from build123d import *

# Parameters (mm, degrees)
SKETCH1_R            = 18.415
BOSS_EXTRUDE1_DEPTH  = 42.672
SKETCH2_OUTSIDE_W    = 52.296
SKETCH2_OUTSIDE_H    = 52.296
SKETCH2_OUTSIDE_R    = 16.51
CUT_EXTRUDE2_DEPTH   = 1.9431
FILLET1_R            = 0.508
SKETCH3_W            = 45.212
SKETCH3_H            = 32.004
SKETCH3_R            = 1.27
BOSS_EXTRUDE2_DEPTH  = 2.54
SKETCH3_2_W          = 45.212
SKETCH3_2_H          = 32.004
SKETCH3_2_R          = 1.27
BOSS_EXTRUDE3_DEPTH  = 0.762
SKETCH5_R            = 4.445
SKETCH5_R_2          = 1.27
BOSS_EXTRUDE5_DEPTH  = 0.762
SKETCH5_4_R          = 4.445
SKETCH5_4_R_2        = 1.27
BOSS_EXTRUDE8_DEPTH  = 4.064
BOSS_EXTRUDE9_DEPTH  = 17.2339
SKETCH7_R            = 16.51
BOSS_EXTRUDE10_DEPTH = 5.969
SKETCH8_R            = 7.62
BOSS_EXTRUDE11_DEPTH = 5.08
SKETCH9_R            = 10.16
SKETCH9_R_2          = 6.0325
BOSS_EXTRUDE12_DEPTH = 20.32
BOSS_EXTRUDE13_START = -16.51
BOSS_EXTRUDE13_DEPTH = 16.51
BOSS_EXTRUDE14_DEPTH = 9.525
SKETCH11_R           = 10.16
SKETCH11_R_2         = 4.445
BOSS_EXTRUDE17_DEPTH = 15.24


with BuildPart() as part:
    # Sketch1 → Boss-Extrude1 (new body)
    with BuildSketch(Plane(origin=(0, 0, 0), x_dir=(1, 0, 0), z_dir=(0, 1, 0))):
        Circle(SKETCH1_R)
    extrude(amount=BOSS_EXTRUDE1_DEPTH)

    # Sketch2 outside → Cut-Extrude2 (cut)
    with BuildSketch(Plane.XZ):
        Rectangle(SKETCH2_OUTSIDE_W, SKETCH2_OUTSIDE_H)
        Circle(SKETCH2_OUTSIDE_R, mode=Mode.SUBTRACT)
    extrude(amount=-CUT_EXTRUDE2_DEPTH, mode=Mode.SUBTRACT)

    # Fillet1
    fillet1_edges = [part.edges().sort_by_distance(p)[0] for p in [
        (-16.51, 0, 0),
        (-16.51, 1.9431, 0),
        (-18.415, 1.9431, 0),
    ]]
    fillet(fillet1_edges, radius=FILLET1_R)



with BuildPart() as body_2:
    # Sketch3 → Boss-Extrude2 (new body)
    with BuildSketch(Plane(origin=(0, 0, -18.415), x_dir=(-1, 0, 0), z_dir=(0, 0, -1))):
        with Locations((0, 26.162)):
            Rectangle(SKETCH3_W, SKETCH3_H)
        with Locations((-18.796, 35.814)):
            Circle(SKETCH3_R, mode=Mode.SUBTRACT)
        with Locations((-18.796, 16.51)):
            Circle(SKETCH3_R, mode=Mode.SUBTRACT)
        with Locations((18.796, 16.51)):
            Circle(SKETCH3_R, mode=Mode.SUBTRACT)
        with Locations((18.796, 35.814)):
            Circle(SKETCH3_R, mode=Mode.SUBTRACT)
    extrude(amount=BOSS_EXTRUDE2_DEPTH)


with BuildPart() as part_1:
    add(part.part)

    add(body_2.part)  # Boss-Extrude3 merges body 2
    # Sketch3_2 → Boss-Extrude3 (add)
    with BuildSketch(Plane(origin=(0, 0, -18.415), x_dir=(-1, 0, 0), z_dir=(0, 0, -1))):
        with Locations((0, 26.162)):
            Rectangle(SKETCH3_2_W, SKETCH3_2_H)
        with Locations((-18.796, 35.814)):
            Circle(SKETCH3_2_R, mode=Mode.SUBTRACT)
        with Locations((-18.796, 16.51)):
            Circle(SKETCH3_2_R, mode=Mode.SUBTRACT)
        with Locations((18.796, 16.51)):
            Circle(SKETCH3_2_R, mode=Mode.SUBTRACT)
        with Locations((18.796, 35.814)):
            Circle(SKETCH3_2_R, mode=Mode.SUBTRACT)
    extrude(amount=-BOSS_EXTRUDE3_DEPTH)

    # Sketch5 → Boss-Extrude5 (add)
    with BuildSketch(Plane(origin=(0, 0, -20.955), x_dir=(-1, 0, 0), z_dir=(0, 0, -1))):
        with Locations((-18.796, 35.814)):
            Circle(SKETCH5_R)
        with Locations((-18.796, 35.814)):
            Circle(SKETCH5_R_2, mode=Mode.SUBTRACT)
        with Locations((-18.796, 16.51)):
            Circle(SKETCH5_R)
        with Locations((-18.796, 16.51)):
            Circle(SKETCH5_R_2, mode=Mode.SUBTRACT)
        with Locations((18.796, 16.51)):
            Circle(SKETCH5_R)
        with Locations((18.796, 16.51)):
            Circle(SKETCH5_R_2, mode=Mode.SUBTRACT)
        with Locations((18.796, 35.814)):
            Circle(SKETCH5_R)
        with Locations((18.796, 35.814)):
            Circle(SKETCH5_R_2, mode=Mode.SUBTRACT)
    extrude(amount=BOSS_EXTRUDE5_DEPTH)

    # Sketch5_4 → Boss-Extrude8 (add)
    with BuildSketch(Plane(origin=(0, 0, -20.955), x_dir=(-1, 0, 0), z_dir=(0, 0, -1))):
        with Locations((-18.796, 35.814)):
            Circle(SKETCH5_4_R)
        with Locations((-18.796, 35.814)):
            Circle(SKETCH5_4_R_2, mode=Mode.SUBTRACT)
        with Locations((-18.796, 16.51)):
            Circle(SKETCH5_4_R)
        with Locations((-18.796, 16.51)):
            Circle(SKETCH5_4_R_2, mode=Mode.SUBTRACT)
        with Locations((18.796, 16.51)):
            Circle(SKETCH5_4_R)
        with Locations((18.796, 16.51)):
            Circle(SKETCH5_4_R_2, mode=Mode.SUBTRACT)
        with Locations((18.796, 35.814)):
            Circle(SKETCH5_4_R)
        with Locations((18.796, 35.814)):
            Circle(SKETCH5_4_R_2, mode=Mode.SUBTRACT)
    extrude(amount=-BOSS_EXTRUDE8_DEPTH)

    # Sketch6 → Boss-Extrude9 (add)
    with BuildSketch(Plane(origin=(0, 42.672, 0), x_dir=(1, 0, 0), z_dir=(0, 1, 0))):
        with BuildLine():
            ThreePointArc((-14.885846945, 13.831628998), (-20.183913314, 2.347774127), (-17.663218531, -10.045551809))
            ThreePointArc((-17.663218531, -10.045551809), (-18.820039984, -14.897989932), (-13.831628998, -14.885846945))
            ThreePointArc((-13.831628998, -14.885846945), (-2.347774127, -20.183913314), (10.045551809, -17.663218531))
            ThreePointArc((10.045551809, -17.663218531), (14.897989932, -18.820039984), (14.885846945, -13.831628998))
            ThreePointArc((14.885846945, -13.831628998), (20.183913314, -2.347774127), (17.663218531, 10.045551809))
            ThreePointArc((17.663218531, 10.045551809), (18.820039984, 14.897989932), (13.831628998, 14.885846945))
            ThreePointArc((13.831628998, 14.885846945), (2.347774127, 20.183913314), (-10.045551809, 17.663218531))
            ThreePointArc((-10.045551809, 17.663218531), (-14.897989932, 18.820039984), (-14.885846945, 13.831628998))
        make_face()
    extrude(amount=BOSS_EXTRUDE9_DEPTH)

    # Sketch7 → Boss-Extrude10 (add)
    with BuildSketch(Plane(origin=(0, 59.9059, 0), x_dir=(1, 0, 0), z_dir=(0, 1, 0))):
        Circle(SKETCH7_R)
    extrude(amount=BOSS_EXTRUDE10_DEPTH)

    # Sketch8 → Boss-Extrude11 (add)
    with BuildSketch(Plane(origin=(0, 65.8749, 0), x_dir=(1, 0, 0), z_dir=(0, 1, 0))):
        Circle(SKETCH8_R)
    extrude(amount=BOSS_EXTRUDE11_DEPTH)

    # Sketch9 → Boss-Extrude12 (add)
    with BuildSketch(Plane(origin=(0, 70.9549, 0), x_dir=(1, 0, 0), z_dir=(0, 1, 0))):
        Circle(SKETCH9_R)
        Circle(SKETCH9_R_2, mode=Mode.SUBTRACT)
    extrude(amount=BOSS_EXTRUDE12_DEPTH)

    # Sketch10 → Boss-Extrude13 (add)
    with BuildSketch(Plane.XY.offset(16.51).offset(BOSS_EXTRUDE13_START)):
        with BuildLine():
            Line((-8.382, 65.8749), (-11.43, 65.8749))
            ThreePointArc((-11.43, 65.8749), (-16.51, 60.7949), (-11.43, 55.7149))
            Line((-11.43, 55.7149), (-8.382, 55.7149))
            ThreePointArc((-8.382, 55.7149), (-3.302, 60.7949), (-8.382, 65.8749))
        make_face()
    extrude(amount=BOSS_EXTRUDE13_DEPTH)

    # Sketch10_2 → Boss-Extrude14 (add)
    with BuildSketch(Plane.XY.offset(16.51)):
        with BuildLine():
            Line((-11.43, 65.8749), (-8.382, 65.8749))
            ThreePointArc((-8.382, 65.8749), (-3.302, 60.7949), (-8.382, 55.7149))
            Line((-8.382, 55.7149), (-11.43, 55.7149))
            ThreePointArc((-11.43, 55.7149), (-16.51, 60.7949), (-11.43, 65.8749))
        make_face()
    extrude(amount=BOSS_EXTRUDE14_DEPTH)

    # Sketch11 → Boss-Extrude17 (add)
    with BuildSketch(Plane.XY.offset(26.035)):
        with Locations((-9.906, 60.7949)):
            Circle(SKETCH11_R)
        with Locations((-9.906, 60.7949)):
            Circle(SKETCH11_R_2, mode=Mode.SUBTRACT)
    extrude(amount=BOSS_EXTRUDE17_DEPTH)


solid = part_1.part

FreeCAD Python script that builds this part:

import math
import FreeCAD as App
import Part
import Sketcher
from FreeCAD import Vector
Q = App.Units.Quantity


def edges_at(feature, points):
    """Names of the edges that pass closest to the given points."""
    edges = feature.Shape.Edges
    near = lambda p: min(range(len(edges)), key=lambda i: edges[i].distToShape(Part.Vertex(*p))[0])
    return sorted({f"Edge{near(p) + 1}" for p in points})


def add_polygon(sketch, points):
    """Adds a closed chain of lines whose ends are joined by coincident constraints."""
    first, n = sketch.GeometryCount, len(points)
    for a, b in zip(points, points[1:] + points[:1]):
        sketch.addGeometry(Part.LineSegment(App.Vector(*a, 0), App.Vector(*b, 0)), False)
    for i in range(n):
        sketch.addConstraint(Sketcher.Constraint("Coincident", first + i, 2, first + (i + 1) % n, 1))

doc = App.newDocument("Part")
body = doc.addObject("PartDesign::Body", "Body")

# Sketch on XZ plane
sketch1 = body.newObject("Sketcher::SketchObject", "Sketch")
sketch1.AttachmentSupport = (doc.getObject("XZ_Plane"), [""])
sketch1.MapMode = "FlatFace"
sketch1.addGeometry(Part.Circle(Vector(0, 0, 0), Vector(0, 0, 1), 18), False)
sketch1.addConstraint([
    Sketcher.Constraint("Coincident", 0, 3, -1, 1),
    Sketcher.Constraint("Diameter", 0, Q("1.45 in")),
])
pad1 = body.newObject("PartDesign::Pad", "Pad")
pad1.Profile = sketch1
pad1.Length = Q("1.68 in")
pad1.Reversed = True

# Sketch on XZ plane
sketch2 = body.newObject("Sketcher::SketchObject", "Sketch001")
sketch2.AttachmentSupport = (doc.getObject("XZ_Plane"), [""])
sketch2.MapMode = "FlatFace"
add_polygon(sketch2, [(-26, 26), (-26, -26), (26, -26), (26, 26)])  # lines 0-3
sketch2.addGeometry(Part.Circle(Vector(0, 0, 0), Vector(0, 0, 1), 17), False)  # 4
sketch2.addConstraint([
    Sketcher.Constraint("Vertical", 0),
    Sketcher.Constraint("Horizontal", 1),
    Sketcher.Constraint("Vertical", 2),
    Sketcher.Constraint("Horizontal", 3),
    Sketcher.Constraint("Coincident", 4, 3, -1, 1),
    Sketcher.Constraint("Symmetric", 0, 2, 2, 2, -1, 1),
    Sketcher.Constraint("Equal", 3, 0),
    Sketcher.Constraint("Diameter", 4, Q("1.3 in")),
    Sketcher.Constraint("DistanceX", 1, 1, 1, 2, 52.296),
])
pocket1 = body.newObject("PartDesign::Pocket", "Pocket")
pocket1.Profile = sketch2
pocket1.Length = Q("0.0765 in")
doc.recompute()

fillet = body.newObject("PartDesign::Fillet", "Fillet")
fillet.Base = (pocket1, edges_at(pocket1, [(-16.51, 0, 0), (-16.51, 1.943, 0), (-18.415, 1.943, 0)]))
fillet.Radius = Q("0.02 in")
body2 = doc.addObject("PartDesign::Body", "Body001")

# Sketch on XY plane
sketch3 = body2.newObject("Sketcher::SketchObject", "Sketch002")
sketch3.AttachmentSupport = (doc.getObject("XY_Plane001"), [""])
sketch3.MapMode = "FlatFace"
sketch3.AttachmentOffset = App.Placement(Vector(0, 0, -0.725 * 25.4), App.Rotation())
add_polygon(sketch3, [(22.6, 42.2), (22.6, 10.2), (-22.6, 10.2), (-22.6, 42.2)])  # lines 0-3
sketch3.addGeometry(Part.Circle(Vector(18.8, 16.5, 0), Vector(0, 0, 1), 1.3), False)  # 4
sketch3.addGeometry(Part.Circle(Vector(-18.8, 16.5, 0), Vector(0, 0, 1), 1.3), False)  # 5
sketch3.addGeometry(Part.Circle(Vector(18.8, 35.8, 0), Vector(0, 0, 1), 1.3), False)  # 6
sketch3.addGeometry(Part.Circle(Vector(-18.8, 35.8, 0), Vector(0, 0, 1), 1.3), False)  # 7
sketch3.addConstraint([
    Sketcher.Constraint("Vertical", 0),
    Sketcher.Constraint("Horizontal", 1),
    Sketcher.Constraint("Vertical", 2),
    Sketcher.Constraint("Horizontal", 3),
    Sketcher.Constraint("Equal", 4, 5),
    Sketcher.Constraint("Equal", 5, 6),
    Sketcher.Constraint("Equal", 6, 7),
    Sketcher.Constraint("Symmetric", 4, 3, 5, 3, -2),
    Sketcher.Constraint("Symmetric", 6, 3, 7, 3, -2),
    Sketcher.Constraint("Vertical", 4, 3, 6, 3),
    Sketcher.Constraint("Diameter", 4, Q("0.1 in")),
    Sketcher.Constraint("DistanceX", 1, 2, 1, 1, Q("1.78 in")),
    Sketcher.Constraint("DistanceY", 0, 2, 0, 1, Q("1.26 in")),
    Sketcher.Constraint("DistanceY", -1, 1, 0, 2, Q("0.4 in")),
    Sketcher.Constraint("DistanceX", -1, 1, 4, 3, Q("0.74 in")),
    Sketcher.Constraint("DistanceY", -1, 1, 4, 3, Q("0.65 in")),
    Sketcher.Constraint("DistanceY", -1, 1, 6, 3, Q("1.41 in")),
    Sketcher.Constraint("DistanceX", -1, 1, 0, 2, Q("0.89 in")),
])
pad2 = body2.newObject("PartDesign::Pad", "Pad001")
pad2.Profile = sketch3
pad2.Length = Q("0.1 in")
pad2.Reversed = True
body.AllowCompound = True
doc.recompute()

boolean = body.newObject("PartDesign::Boolean", "Boolean")
boolean.Type = "Fuse"
boolean.addObjects([body2])

# Sketch on XY plane
sketch4 = body.newObject("Sketcher::SketchObject", "Sketch003")
sketch4.AttachmentSupport = (doc.getObject("XY_Plane"), [""])
sketch4.MapMode = "FlatFace"
sketch4.AttachmentOffset = App.Placement(Vector(0, 0, -0.725 * 25.4), App.Rotation())
add_polygon(sketch4, [(22.6, 42.2), (22.6, 10.2), (-22.6, 10.2), (-22.6, 42.2)])  # lines 0-3
sketch4.addGeometry(Part.Circle(Vector(18.8, 16.5, 0), Vector(0, 0, 1), 1.3), False)  # 4
sketch4.addGeometry(Part.Circle(Vector(-18.8, 16.5, 0), Vector(0, 0, 1), 1.3), False)  # 5
sketch4.addGeometry(Part.Circle(Vector(18.8, 35.8, 0), Vector(0, 0, 1), 1.3), False)  # 6
sketch4.addGeometry(Part.Circle(Vector(-18.8, 35.8, 0), Vector(0, 0, 1), 1.3), False)  # 7
sketch4.addConstraint([
    Sketcher.Constraint("Vertical", 0),
    Sketcher.Constraint("Horizontal", 1),
    Sketcher.Constraint("Vertical", 2),
    Sketcher.Constraint("Horizontal", 3),
    Sketcher.Constraint("Equal", 4, 5),
    Sketcher.Constraint("Equal", 5, 6),
    Sketcher.Constraint("Equal", 6, 7),
    Sketcher.Constraint("Symmetric", 4, 3, 5, 3, -2),
    Sketcher.Constraint("Symmetric", 6, 3, 7, 3, -2),
    Sketcher.Constraint("Vertical", 4, 3, 6, 3),
    Sketcher.Constraint("Diameter", 4, Q("0.1 in")),
    Sketcher.Constraint("DistanceX", 1, 2, 1, 1, Q("1.78 in")),
    Sketcher.Constraint("DistanceY", 0, 2, 0, 1, Q("1.26 in")),
    Sketcher.Constraint("DistanceY", -1, 1, 0, 2, Q("0.4 in")),
    Sketcher.Constraint("DistanceX", -1, 1, 4, 3, Q("0.74 in")),
    Sketcher.Constraint("DistanceY", -1, 1, 4, 3, Q("0.65 in")),
    Sketcher.Constraint("DistanceY", -1, 1, 6, 3, Q("1.41 in")),
    Sketcher.Constraint("DistanceX", -1, 1, 0, 2, Q("0.89 in")),
])
pad3 = body.newObject("PartDesign::Pad", "Pad002")
pad3.Profile = sketch4
pad3.Length = Q("0.03 in")

# Sketch on XY plane
sketch5 = body.newObject("Sketcher::SketchObject", "Sketch004")
sketch5.AttachmentSupport = (doc.getObject("XY_Plane"), [""])
sketch5.MapMode = "FlatFace"
sketch5.AttachmentOffset = App.Placement(Vector(0, 0, -0.825 * 25.4), App.Rotation())
sketch5.addGeometry([
    Part.Circle(Vector(18.8, 35.8, 0), Vector(0, 0, 1), 4.4),  # 0
    Part.Circle(Vector(18.8, 35.8, 0), Vector(0, 0, 1), 1.3),  # 1
    Part.Circle(Vector(18.8, 16.5, 0), Vector(0, 0, 1), 4.4),  # 2
    Part.Circle(Vector(18.8, 16.5, 0), Vector(0, 0, 1), 1.3),  # 3
    Part.Circle(Vector(-18.8, 16.5, 0), Vector(0, 0, 1), 4.4),  # 4
    Part.Circle(Vector(-18.8, 16.5, 0), Vector(0, 0, 1), 1.3),  # 5
    Part.Circle(Vector(-18.8, 35.8, 0), Vector(0, 0, 1), 4.4),  # 6
    Part.Circle(Vector(-18.8, 35.8, 0), Vector(0, 0, 1), 1.3),  # 7
], False)
sketch5.addConstraint([
    Sketcher.Constraint("Coincident", 1, 3, 0, 3),
    Sketcher.Constraint("Coincident", 3, 3, 2, 3),
    Sketcher.Constraint("Coincident", 5, 3, 4, 3),
    Sketcher.Constraint("Coincident", 7, 3, 6, 3),
    Sketcher.Constraint("Equal", 0, 2),
    Sketcher.Constraint("Equal", 1, 3),
    Sketcher.Constraint("Equal", 2, 4),
    Sketcher.Constraint("Equal", 3, 5),
    Sketcher.Constraint("Equal", 4, 6),
    Sketcher.Constraint("Equal", 5, 7),
    Sketcher.Constraint("Symmetric", 2, 3, 4, 3, -2),
    Sketcher.Constraint("Symmetric", 0, 3, 6, 3, -2),
    Sketcher.Constraint("Vertical", 1, 3, 2, 3),
    Sketcher.Constraint("Diameter", 1, Q("0.1 in")),
    Sketcher.Constraint("Diameter", 0, Q("0.35 in")),
    Sketcher.Constraint("DistanceX", -1, 1, 0, 3, Q("0.74 in")),
    Sketcher.Constraint("DistanceY", -1, 1, 0, 3, Q("1.41 in")),
    Sketcher.Constraint("DistanceY", -1, 1, 2, 3, Q("0.65 in")),
])
pad4 = body.newObject("PartDesign::Pad", "Pad003")
pad4.Profile = sketch5
pad4.Length = Q("0.03 in")
pad4.Reversed = True

# Sketch on XY plane
sketch6 = body.newObject("Sketcher::SketchObject", "Sketch005")
sketch6.AttachmentSupport = (doc.getObject("XY_Plane"), [""])
sketch6.MapMode = "FlatFace"
sketch6.AttachmentOffset = App.Placement(Vector(0, 0, -0.825 * 25.4), App.Rotation())
sketch6.addGeometry([
    Part.Circle(Vector(18.8, 35.8, 0), Vector(0, 0, 1), 4.4),  # 0
    Part.Circle(Vector(18.8, 35.8, 0), Vector(0, 0, 1), 1.3),  # 1
    Part.Circle(Vector(18.8, 16.5, 0), Vector(0, 0, 1), 4.4),  # 2
    Part.Circle(Vector(18.8, 16.5, 0), Vector(0, 0, 1), 1.3),  # 3
    Part.Circle(Vector(-18.8, 16.5, 0), Vector(0, 0, 1), 4.4),  # 4
    Part.Circle(Vector(-18.8, 16.5, 0), Vector(0, 0, 1), 1.3),  # 5
    Part.Circle(Vector(-18.8, 35.8, 0), Vector(0, 0, 1), 4.4),  # 6
    Part.Circle(Vector(-18.8, 35.8, 0), Vector(0, 0, 1), 1.3),  # 7
], False)
sketch6.addConstraint([
    Sketcher.Constraint("Coincident", 1, 3, 0, 3),
    Sketcher.Constraint("Coincident", 3, 3, 2, 3),
    Sketcher.Constraint("Coincident", 5, 3, 4, 3),
    Sketcher.Constraint("Coincident", 7, 3, 6, 3),
    Sketcher.Constraint("Equal", 0, 2),
    Sketcher.Constraint("Equal", 1, 3),
    Sketcher.Constraint("Equal", 2, 4),
    Sketcher.Constraint("Equal", 3, 5),
    Sketcher.Constraint("Equal", 4, 6),
    Sketcher.Constraint("Equal", 5, 7),
    Sketcher.Constraint("Symmetric", 2, 3, 4, 3, -2),
    Sketcher.Constraint("Symmetric", 0, 3, 6, 3, -2),
    Sketcher.Constraint("Vertical", 1, 3, 2, 3),
    Sketcher.Constraint("Diameter", 1, Q("0.1 in")),
    Sketcher.Constraint("Diameter", 0, Q("0.35 in")),
    Sketcher.Constraint("DistanceX", -1, 1, 0, 3, Q("0.74 in")),
    Sketcher.Constraint("DistanceY", -1, 1, 0, 3, Q("1.41 in")),
    Sketcher.Constraint("DistanceY", -1, 1, 2, 3, Q("0.65 in")),
])
pad5 = body.newObject("PartDesign::Pad", "Pad004")
pad5.Profile = sketch6
pad5.Length = Q("0.16 in")

# Sketch on XZ plane
sketch7 = body.newObject("Sketcher::SketchObject", "Sketch006")
sketch7.AttachmentSupport = (doc.getObject("XZ_Plane"), [""])
sketch7.MapMode = "FlatFace"
sketch7.AttachmentOffset = App.Placement(Vector(0, 0, -1.68 * 25.4), App.Rotation())
sketch7.addGeometry([
    Part.ArcOfCircle(Part.Circle(Vector(0, 0, 0), Vector(0, 0, 1), 20.3), math.radians(150), math.radians(223)),  # 0
    Part.ArcOfCircle(Part.Circle(Vector(-16.3, 12.9, 0), Vector(0, 0, 1), 3.2), math.radians(38), math.radians(245)),  # 1
    Part.ArcOfCircle(Part.Circle(Vector(0, 0, 0), Vector(0, 0, 1), 20.3), math.radians(60), math.radians(133)),  # 2
    Part.ArcOfCircle(Part.Circle(Vector(12.9, 16.3, 0), Vector(0, 0, 1), 3.2), math.radians(-52), math.radians(155)),  # 3
    Part.ArcOfCircle(Part.Circle(Vector(0, 0, 0), Vector(0, 0, 1), 20.3), math.radians(-30), math.radians(43)),  # 4
    Part.ArcOfCircle(Part.Circle(Vector(16.3, -12.9, 0), Vector(0, 0, 1), 3.2), math.radians(-142), math.radians(65)),  # 5
    Part.ArcOfCircle(Part.Circle(Vector(0, 0, 0), Vector(0, 0, 1), 20.3), math.radians(-120), math.radians(-47)),  # 6
    Part.ArcOfCircle(Part.Circle(Vector(-12.9, -16.3, 0), Vector(0, 0, 1), 3.2), math.radians(128), math.radians(335)),  # 7
], False)
sketch7.addConstraint([
    Sketcher.Constraint("Coincident", 0, 1, 1, 2),
    Sketcher.Constraint("Coincident", 1, 1, 2, 2),
    Sketcher.Constraint("Coincident", 2, 1, 3, 2),
    Sketcher.Constraint("Coincident", 3, 1, 4, 2),
    Sketcher.Constraint("Coincident", 4, 1, 5, 2),
    Sketcher.Constraint("Coincident", 5, 1, 6, 2),
    Sketcher.Constraint("Coincident", 6, 1, 7, 2),
    Sketcher.Constraint("Coincident", 7, 1, 0, 2),
    Sketcher.Constraint("Coincident", 0, 3, -1, 1),
    Sketcher.Constraint("Coincident", 2, 3, -1, 1),
    Sketcher.Constraint("Coincident", 4, 3, -1, 1),
    Sketcher.Constraint("Coincident", 6, 3, -1, 1),
    Sketcher.Constraint("Equal", 0, 2),
    Sketcher.Constraint("Equal", 1, 3),
    Sketcher.Constraint("Equal", 2, 4),
    Sketcher.Constraint("Equal", 3, 5),
    Sketcher.Constraint("Equal", 4, 6),
    Sketcher.Constraint("Equal", 5, 7),
    Sketcher.Constraint("Symmetric", 1, 3, 5, 3, -1, 1),
    Sketcher.Constraint("Symmetric", 3, 3, 7, 3, -1, 1),
    Sketcher.Constraint("Radius", 0, Q("0.8 in")),
    Sketcher.Constraint("Radius", 1, Q("0.125 in")),
    Sketcher.Constraint("DistanceX", 0, 1, 1, 3, 1.332602),
    Sketcher.Constraint("DistanceY", 3, 3, 2, 1, 1.332602),
    Sketcher.Constraint("DistanceX", 0, 1, -1, 1, 17.663219),
    Sketcher.Constraint("DistanceX", -1, 1, 2, 1, 10.045552),
])
pad6 = body.newObject("PartDesign::Pad", "Pad005")
pad6.Profile = sketch7
pad6.Length = Q("0.6785 in")
pad6.Reversed = True

# Sketch on XZ plane
sketch8 = body.newObject("Sketcher::SketchObject", "Sketch007")
sketch8.AttachmentSupport = (doc.getObject("XZ_Plane"), [""])
sketch8.MapMode = "FlatFace"
sketch8.AttachmentOffset = App.Placement(Vector(0, 0, -2.3585 * 25.4), App.Rotation())
sketch8.addGeometry(Part.Circle(Vector(0, 0, 0), Vector(0, 0, 1), 17), False)
sketch8.addConstraint([
    Sketcher.Constraint("Coincident", 0, 3, -1, 1),
    Sketcher.Constraint("Diameter", 0, Q("1.3 in")),
])
pad7 = body.newObject("PartDesign::Pad", "Pad006")
pad7.Profile = sketch8
pad7.Length = Q("0.235 in")
pad7.Reversed = True

# Sketch on XZ plane
sketch9 = body.newObject("Sketcher::SketchObject", "Sketch008")
sketch9.AttachmentSupport = (doc.getObject("XZ_Plane"), [""])
sketch9.MapMode = "FlatFace"
sketch9.AttachmentOffset = App.Placement(Vector(0, 0, -2.5935 * 25.4), App.Rotation())
sketch9.addGeometry(Part.Circle(Vector(0, 0, 0), Vector(0, 0, 1), 8), False)
sketch9.addConstraint([
    Sketcher.Constraint("Coincident", 0, 3, -1, 1),
    Sketcher.Constraint("Diameter", 0, Q("0.6 in")),
])
pad8 = body.newObject("PartDesign::Pad", "Pad007")
pad8.Profile = sketch9
pad8.Length = Q("0.2 in")
pad8.Reversed = True

# Sketch on XZ plane
sketch10 = body.newObject("Sketcher::SketchObject", "Sketch009")
sketch10.AttachmentSupport = (doc.getObject("XZ_Plane"), [""])
sketch10.MapMode = "FlatFace"
sketch10.AttachmentOffset = App.Placement(Vector(0, 0, -2.7935 * 25.4), App.Rotation())
sketch10.addGeometry([
    Part.Circle(Vector(0, 0, 0), Vector(0, 0, 1), 10),
    Part.Circle(Vector(0, 0, 0), Vector(0, 0, 1), 6),
], False)
sketch10.addConstraint([
    Sketcher.Constraint("Coincident", 0, 3, -1, 1),
    Sketcher.Constraint("Coincident", 1, 3, -1, 1),
    Sketcher.Constraint("Diameter", 0, Q("0.8 in")),
    Sketcher.Constraint("Diameter", 1, Q("0.475 in")),
])
pad9 = body.newObject("PartDesign::Pad", "Pad008")
pad9.Profile = sketch10
pad9.Length = Q("0.8 in")
pad9.Reversed = True

# Sketch on XY plane
sketch11 = body.newObject("Sketcher::SketchObject", "Sketch010")
sketch11.AttachmentSupport = (doc.getObject("XY_Plane"), [""])
sketch11.MapMode = "FlatFace"
sketch11.addGeometry([
    Part.LineSegment(Vector(-8.4, 65.9, 0), Vector(-11.4, 65.9, 0)),
    Part.ArcOfCircle(Part.Circle(Vector(-11.4, 60.8, 0), Vector(0, 0, 1), 5.1), math.radians(90), math.radians(270)),
    Part.LineSegment(Vector(-11.4, 55.7, 0), Vector(-8.4, 55.7, 0)),
    Part.ArcOfCircle(Part.Circle(Vector(-8.4, 60.8, 0), Vector(0, 0, 1), 5.1), math.radians(-90), math.radians(90)),
], False)
sketch11.addConstraint([
    Sketcher.Constraint("Tangent", 0, 2, 1, 1),
    Sketcher.Constraint("Tangent", 1, 2, 2, 1),
    Sketcher.Constraint("Tangent", 2, 2, 3, 1),
    Sketcher.Constraint("Tangent", 3, 2, 0, 1),
    Sketcher.Constraint("Horizontal", 0),
    Sketcher.Constraint("Horizontal", 2),
    Sketcher.Constraint("Radius", 1, Q("0.2 in")),
    Sketcher.Constraint("DistanceX", 0, 2, 0, 1, Q("0.12 in")),
    Sketcher.Constraint("DistanceX", 1, 3, -1, 1, Q("0.45 in")),
    Sketcher.Constraint("DistanceY", -1, 1, 1, 3, Q("2.3935 in")),
])
pad10 = body.newObject("PartDesign::Pad", "Pad009")
pad10.Profile = sketch11
pad10.Length = Q("0.65 in")

# Sketch on XY plane
sketch12 = body.newObject("Sketcher::SketchObject", "Sketch011")
sketch12.AttachmentSupport = (doc.getObject("XY_Plane"), [""])
sketch12.MapMode = "FlatFace"
sketch12.AttachmentOffset = App.Placement(Vector(0, 0, 0.65 * 25.4), App.Rotation())
sketch12.addGeometry([
    Part.LineSegment(Vector(-8.4, 65.9, 0), Vector(-11.4, 65.9, 0)),
    Part.ArcOfCircle(Part.Circle(Vector(-11.4, 60.8, 0), Vector(0, 0, 1), 5.1), math.radians(90), math.radians(270)),
    Part.LineSegment(Vector(-11.4, 55.7, 0), Vector(-8.4, 55.7, 0)),
    Part.ArcOfCircle(Part.Circle(Vector(-8.4, 60.8, 0), Vector(0, 0, 1), 5.1), math.radians(-90), math.radians(90)),
], False)
sketch12.addConstraint([
    Sketcher.Constraint("Tangent", 0, 2, 1, 1),
    Sketcher.Constraint("Tangent", 1, 2, 2, 1),
    Sketcher.Constraint("Tangent", 2, 2, 3, 1),
    Sketcher.Constraint("Tangent", 3, 2, 0, 1),
    Sketcher.Constraint("Horizontal", 0),
    Sketcher.Constraint("Horizontal", 2),
    Sketcher.Constraint("Radius", 1, Q("0.2 in")),
    Sketcher.Constraint("DistanceX", 0, 2, 0, 1, Q("0.12 in")),
    Sketcher.Constraint("DistanceX", 1, 3, -1, 1, Q("0.45 in")),
    Sketcher.Constraint("DistanceY", -1, 1, 1, 3, Q("2.3935 in")),
])
pad11 = body.newObject("PartDesign::Pad", "Pad010")
pad11.Profile = sketch12
pad11.Length = Q("0.375 in")

# Sketch on XY plane
sketch13 = body.newObject("Sketcher::SketchObject", "Sketch012")
sketch13.AttachmentSupport = (doc.getObject("XY_Plane"), [""])
sketch13.MapMode = "FlatFace"
sketch13.AttachmentOffset = App.Placement(Vector(0, 0, 1.025 * 25.4), App.Rotation())
sketch13.addGeometry([
    Part.Circle(Vector(-9.9, 60.8, 0), Vector(0, 0, 1), 10.2),
    Part.Circle(Vector(-9.9, 60.8, 0), Vector(0, 0, 1), 4.4),
], False)
sketch13.addConstraint([
    Sketcher.Constraint("Coincident", 1, 3, 0, 3),
    Sketcher.Constraint("Diameter", 0, Q("0.8 in")),
    Sketcher.Constraint("Diameter", 1, Q("0.35 in")),
    Sketcher.Constraint("DistanceX", 0, 3, -1, 1, Q("0.39 in")),
    Sketcher.Constraint("DistanceY", -1, 1, 0, 3, Q("2.3935 in")),
])
pad12 = body.newObject("PartDesign::Pad", "Pad011")
pad12.Profile = sketch13
pad12.Length = Q("0.6 in")

doc.recompute()
